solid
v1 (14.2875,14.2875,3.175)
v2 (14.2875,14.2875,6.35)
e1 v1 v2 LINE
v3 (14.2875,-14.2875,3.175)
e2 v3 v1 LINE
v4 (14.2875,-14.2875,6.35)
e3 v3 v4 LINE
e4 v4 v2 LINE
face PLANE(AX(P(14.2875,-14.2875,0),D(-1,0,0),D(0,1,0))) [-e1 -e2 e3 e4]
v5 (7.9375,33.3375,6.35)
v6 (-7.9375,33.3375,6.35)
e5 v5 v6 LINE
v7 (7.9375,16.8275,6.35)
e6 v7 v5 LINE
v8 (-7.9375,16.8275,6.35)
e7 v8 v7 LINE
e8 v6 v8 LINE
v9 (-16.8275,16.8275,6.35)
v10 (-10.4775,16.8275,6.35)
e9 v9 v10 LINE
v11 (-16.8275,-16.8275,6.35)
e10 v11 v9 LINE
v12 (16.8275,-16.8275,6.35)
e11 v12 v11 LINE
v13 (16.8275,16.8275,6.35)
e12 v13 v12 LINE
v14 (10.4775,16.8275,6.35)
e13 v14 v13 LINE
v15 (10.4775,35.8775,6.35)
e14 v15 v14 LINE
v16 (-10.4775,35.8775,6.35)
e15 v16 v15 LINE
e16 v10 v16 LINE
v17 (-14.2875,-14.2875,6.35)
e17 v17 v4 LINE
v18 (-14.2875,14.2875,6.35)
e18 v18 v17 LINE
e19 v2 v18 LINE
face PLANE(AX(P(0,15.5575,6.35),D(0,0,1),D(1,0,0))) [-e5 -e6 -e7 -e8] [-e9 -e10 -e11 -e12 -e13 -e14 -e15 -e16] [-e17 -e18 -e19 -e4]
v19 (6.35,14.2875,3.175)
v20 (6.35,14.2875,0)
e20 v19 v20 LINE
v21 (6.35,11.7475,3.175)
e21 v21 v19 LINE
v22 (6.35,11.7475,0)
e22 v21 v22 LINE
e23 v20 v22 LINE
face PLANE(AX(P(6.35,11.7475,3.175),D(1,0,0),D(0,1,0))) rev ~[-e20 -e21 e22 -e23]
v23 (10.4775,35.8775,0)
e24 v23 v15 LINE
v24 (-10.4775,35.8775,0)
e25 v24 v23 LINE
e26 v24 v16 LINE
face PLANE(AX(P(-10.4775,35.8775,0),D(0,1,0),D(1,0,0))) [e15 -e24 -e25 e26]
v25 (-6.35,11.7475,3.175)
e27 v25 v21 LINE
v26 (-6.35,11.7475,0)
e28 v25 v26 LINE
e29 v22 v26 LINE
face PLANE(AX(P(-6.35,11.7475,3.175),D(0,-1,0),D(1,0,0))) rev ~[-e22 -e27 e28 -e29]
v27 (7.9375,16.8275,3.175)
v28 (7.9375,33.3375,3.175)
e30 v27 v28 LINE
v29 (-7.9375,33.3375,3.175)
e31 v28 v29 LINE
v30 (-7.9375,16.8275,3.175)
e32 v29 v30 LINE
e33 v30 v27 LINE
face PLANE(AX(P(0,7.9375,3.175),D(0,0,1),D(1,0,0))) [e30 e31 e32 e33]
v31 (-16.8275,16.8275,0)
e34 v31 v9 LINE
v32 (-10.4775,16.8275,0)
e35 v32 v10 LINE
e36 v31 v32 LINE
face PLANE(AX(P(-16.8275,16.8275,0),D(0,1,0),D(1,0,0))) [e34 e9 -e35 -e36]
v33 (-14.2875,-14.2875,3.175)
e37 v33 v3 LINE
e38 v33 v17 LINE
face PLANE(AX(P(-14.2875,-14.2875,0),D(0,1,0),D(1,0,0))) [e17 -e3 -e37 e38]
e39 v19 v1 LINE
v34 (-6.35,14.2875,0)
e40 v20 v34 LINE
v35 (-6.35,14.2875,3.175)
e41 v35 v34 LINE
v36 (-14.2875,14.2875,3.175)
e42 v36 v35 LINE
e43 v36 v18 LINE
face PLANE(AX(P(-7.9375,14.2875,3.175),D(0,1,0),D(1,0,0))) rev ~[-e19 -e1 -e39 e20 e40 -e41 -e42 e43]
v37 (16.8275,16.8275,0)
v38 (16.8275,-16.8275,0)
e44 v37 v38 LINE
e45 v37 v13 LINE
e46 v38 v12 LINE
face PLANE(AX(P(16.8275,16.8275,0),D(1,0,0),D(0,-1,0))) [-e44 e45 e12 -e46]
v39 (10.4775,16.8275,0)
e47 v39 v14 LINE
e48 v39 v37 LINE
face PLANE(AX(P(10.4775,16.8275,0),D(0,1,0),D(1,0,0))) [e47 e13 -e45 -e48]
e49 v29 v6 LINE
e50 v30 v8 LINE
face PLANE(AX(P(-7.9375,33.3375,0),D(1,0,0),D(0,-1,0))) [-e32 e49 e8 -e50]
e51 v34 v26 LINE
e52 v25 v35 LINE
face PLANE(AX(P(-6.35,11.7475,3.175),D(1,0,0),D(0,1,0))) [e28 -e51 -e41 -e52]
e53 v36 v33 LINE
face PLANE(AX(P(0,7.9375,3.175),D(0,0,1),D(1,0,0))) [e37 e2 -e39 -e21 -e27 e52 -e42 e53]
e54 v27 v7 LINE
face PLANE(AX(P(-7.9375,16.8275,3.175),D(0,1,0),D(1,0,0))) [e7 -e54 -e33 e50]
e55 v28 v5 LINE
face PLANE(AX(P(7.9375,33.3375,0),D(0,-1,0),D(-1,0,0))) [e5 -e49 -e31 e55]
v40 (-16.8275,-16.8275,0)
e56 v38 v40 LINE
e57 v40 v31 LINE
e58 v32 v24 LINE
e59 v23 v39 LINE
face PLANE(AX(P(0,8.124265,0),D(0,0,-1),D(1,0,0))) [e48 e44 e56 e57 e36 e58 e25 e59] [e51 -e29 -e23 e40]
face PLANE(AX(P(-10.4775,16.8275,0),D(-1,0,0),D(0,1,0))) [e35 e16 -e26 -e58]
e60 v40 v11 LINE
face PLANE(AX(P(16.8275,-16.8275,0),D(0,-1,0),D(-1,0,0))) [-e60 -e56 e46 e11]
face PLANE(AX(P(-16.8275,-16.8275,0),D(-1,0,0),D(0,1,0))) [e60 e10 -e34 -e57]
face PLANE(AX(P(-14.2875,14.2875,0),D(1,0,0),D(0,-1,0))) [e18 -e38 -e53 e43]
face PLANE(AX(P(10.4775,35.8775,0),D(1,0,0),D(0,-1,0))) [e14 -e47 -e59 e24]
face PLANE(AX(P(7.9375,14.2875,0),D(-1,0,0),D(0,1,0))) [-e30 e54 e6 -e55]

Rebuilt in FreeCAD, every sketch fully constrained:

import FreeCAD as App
import Part
import Sketcher

V = App.Vector
Q = App.Units.Quantity

doc = App.newDocument("Part")
body = doc.addObject("PartDesign::Body", "Body")

# Sketch on XY plane
sketch1 = doc.addObject("Sketcher::SketchObject", "Sketch")
body.addObject(sketch1)
sketch1.AttachmentSupport = (doc.XY_Plane, [""])
sketch1.MapMode = "FlatFace"
sketch1.addGeometry([
    Part.LineSegment(V(-8, 14, 0), V(-14, 14, 0)),  # 0
    Part.LineSegment(V(-14, 14, 0), V(-14, -14, 0)),  # 1
    Part.LineSegment(V(-14, -14, 0), V(14, -14, 0)),  # 2
    Part.LineSegment(V(14, -14, 0), V(14, 14, 0)),  # 3
    Part.LineSegment(V(14, 14, 0), V(8, 14, 0)),  # 4
    Part.LineSegment(V(8, 14, 0), V(8, 33, 0)),  # 5
    Part.LineSegment(V(8, 33, 0), V(-8, 33, 0)),  # 6
    Part.LineSegment(V(-8, 33, 0), V(-8, 14, 0)),  # 7
], False)
sketch1.addConstraint([
    Sketcher.Constraint("Coincident", 0, 2, 1, 1),
    Sketcher.Constraint("Coincident", 1, 2, 2, 1),
    Sketcher.Constraint("Coincident", 2, 2, 3, 1),
    Sketcher.Constraint("Coincident", 3, 2, 4, 1),
    Sketcher.Constraint("Coincident", 4, 2, 5, 1),
    Sketcher.Constraint("Coincident", 5, 2, 6, 1),
    Sketcher.Constraint("Coincident", 6, 2, 7, 1),
    Sketcher.Constraint("Coincident", 7, 2, 0, 1),
    Sketcher.Constraint("Horizontal", 0),
    Sketcher.Constraint("Vertical", 1),
    Sketcher.Constraint("Horizontal", 2),
    Sketcher.Constraint("Vertical", 3),
    Sketcher.Constraint("Horizontal", 4),
    Sketcher.Constraint("Vertical", 5),
    Sketcher.Constraint("Horizontal", 6),
    Sketcher.Constraint("Vertical", 7),
    Sketcher.Constraint("Symmetric", 0, 2, 2, 2, -1, 1),
    Sketcher.Constraint("Symmetric", 4, 2, 7, 2, -2),
    Sketcher.Constraint("Equal", 2, 1),
    Sketcher.Constraint("DistanceX", 0, 2, 0, 1, Q("0.25 in")),
    Sketcher.Constraint("DistanceY", 5, 1, 5, 2, Q("0.75 in")),
    Sketcher.Constraint("DistanceX", 2, 1, 2, 2, Q("1.125 in")),
])
pad1 = doc.addObject("PartDesign::Pad", "Pad")
body.addObject(pad1)
pad1.Profile = sketch1
pad1.Length = Q("0.125 in")

# Sketch on XY plane
sketch2 = doc.addObject("Sketcher::SketchObject", "Sketch001")
body.addObject(sketch2)
sketch2.AttachmentSupport = (doc.XY_Plane, [""])
sketch2.MapMode = "FlatFace"
sketch2.addGeometry([
    Part.LineSegment(V(17, 17, 0), V(17, -17, 0)),  # 0
    Part.LineSegment(V(17, -17, 0), V(-17, -17, 0)),  # 1
    Part.LineSegment(V(-17, -17, 0), V(-17, 17, 0)),  # 2
    Part.LineSegment(V(-17, 17, 0), V(-10, 17, 0)),  # 3
    Part.LineSegment(V(-10, 17, 0), V(-10, 36, 0)),  # 4
    Part.LineSegment(V(-10, 36, 0), V(10, 36, 0)),  # 5
    Part.LineSegment(V(10, 36, 0), V(10, 17, 0)),  # 6
    Part.LineSegment(V(10, 17, 0), V(17, 17, 0)),  # 7
    Part.LineSegment(V(-14, 14, 0), V(-14, -14, 0)),  # 8
    Part.LineSegment(V(-14, -14, 0), V(14, -14, 0)),  # 9
    Part.LineSegment(V(14, -14, 0), V(14, 14, 0)),  # 10
    Part.LineSegment(V(14, 14, 0), V(8, 14, 0)),  # 11
    Part.LineSegment(V(8, 14, 0), V(8, 33, 0)),  # 12
    Part.LineSegment(V(8, 33, 0), V(-8, 33, 0)),  # 13
    Part.LineSegment(V(-8, 33, 0), V(-8, 14, 0)),  # 14
    Part.LineSegment(V(-8, 14, 0), V(-14, 14, 0)),  # 15
], False)
sketch2.addConstraint([
    Sketcher.Constraint("Coincident", 0, 2, 1, 1),
    Sketcher.Constraint("Coincident", 1, 2, 2, 1),
    Sketcher.Constraint("Coincident", 2, 2, 3, 1),
    Sketcher.Constraint("Coincident", 3, 2, 4, 1),
    Sketcher.Constraint("Coincident", 4, 2, 5, 1),
    Sketcher.Constraint("Coincident", 5, 2, 6, 1),
    Sketcher.Constraint("Coincident", 6, 2, 7, 1),
    Sketcher.Constraint("Coincident", 7, 2, 0, 1),
    Sketcher.Constraint("Coincident", 8, 2, 9, 1),
    Sketcher.Constraint("Coincident", 9, 2, 10, 1),
    Sketcher.Constraint("Coincident", 10, 2, 11, 1),
    Sketcher.Constraint("Coincident", 11, 2, 12, 1),
    Sketcher.Constraint("Coincident", 12, 2, 13, 1),
    Sketcher.Constraint("Coincident", 13, 2, 14, 1),
    Sketcher.Constraint("Coincident", 14, 2, 15, 1),
    Sketcher.Constraint("Coincident", 15, 2, 8, 1),
    Sketcher.Constraint("Vertical", 0),
    Sketcher.Constraint("Horizontal", 1),
    Sketcher.Constraint("Vertical", 2),
    Sketcher.Constraint("Horizontal", 3),
    Sketcher.Constraint("Vertical", 4),
    Sketcher.Constraint("Horizontal", 5),
    Sketcher.Constraint("Vertical", 6),
    Sketcher.Constraint("Horizontal", 7),
    Sketcher.Constraint("Vertical", 8),
    Sketcher.Constraint("Horizontal", 9),
    Sketcher.Constraint("Vertical", 10),
    Sketcher.Constraint("Horizontal", 11),
    Sketcher.Constraint("Vertical", 12),
    Sketcher.Constraint("Horizontal", 13),
    Sketcher.Constraint("Vertical", 14),
    Sketcher.Constraint("Horizontal", 15),
    Sketcher.Constraint("Symmetric", 0, 2, 2, 2, -1, 1),
    Sketcher.Constraint("Symmetric", 8, 2, 10, 2, -1, 1),
    Sketcher.Constraint("Symmetric", 3, 2, 6, 2, -2),
    Sketcher.Constraint("Symmetric", 11, 2, 14, 2, -2),
    Sketcher.Constraint("Equal", 7, 11),
    Sketcher.Constraint("Equal", 1, 0),
    Sketcher.Constraint("Equal", 9, 8),
    Sketcher.Constraint("Equal", 6, 12),
    Sketcher.Constraint("DistanceX", 3, 1, 3, 2, Q("0.25 in")),
    Sketcher.Constraint("DistanceY", 4, 1, 4, 2, Q("0.75 in")),
    Sketcher.Constraint("DistanceX", 1, 2, 8, 2, Q("0.1 in")),
    Sketcher.Constraint("DistanceX", 1, 2, 1, 1, Q("1.325 in")),
])
pad2 = doc.addObject("PartDesign::Pad", "Pad001")
body.addObject(pad2)
pad2.Profile = sketch2
pad2.Length = Q("0.25 in")

# Sketch on XY plane
sketch3 = doc.addObject("Sketcher::SketchObject", "Sketch002")
body.addObject(sketch3)
sketch3.AttachmentSupport = (doc.XY_Plane, [""])
sketch3.MapMode = "FlatFace"
sketch3.AttachmentOffset = App.Placement(V(0, 0, 0.125 * 25.4), App.Rotation())
sketch3.addGeometry([
    Part.LineSegment(V(-7.9, 16.8, 0), V(-7.9, 14.3, 0)),
    Part.LineSegment(V(-7.9, 14.3, 0), V(7.9, 14.3, 0)),
    Part.LineSegment(V(7.9, 14.3, 0), V(7.9, 16.8, 0)),
    Part.LineSegment(V(7.9, 16.8, 0), V(-7.9, 16.8, 0)),
], False)
sketch3.addConstraint([
    Sketcher.Constraint("Coincident", 0, 2, 1, 1),
    Sketcher.Constraint("Coincident", 1, 2, 2, 1),
    Sketcher.Constraint("Coincident", 2, 2, 3, 1),
    Sketcher.Constraint("Coincident", 3, 2, 0, 1),
    Sketcher.Constraint("Vertical", 0),
    Sketcher.Constraint("Horizontal", 1),
    Sketcher.Constraint("Vertical", 2),
    Sketcher.Constraint("Horizontal", 3),
    Sketcher.Constraint("DistanceY", 0, 2, 0, 1, Q("0.1 in")),
    Sketcher.Constraint("DistanceX", 1, 1, 1, 2, Q("0.625 in")),
    Sketcher.Constraint("DistanceX", 0, 2, -1, 1, Q("0.3125 in")),
    Sketcher.Constraint("DistanceY", -1, 1, 0, 2, Q("0.5625 in")),
])
pad3 = doc.addObject("PartDesign::Pad", "Pad002")
body.addObject(pad3)
pad3.Profile = sketch3
pad3.Length = Q("0.125 in")

# Sketch on XY plane
sketch4 = doc.addObject("Sketcher::SketchObject", "Sketch003")
body.addObject(sketch4)
sketch4.AttachmentSupport = (doc.XY_Plane, [""])
sketch4.MapMode = "FlatFace"
sketch4.AttachmentOffset = App.Placement(V(0, 0, 0.125 * 25.4), App.Rotation())
sketch4.addGeometry([
    Part.LineSegment(V(-6.3, 14.3, 0), V(-6.3, 11.7, 0)),
    Part.LineSegment(V(-6.3, 11.7, 0), V(6.3, 11.7, 0)),
    Part.LineSegment(V(6.3, 11.7, 0), V(6.3, 14.3, 0)),
    Part.LineSegment(V(6.3, 14.3, 0), V(-6.3, 14.3, 0)),
], False)
sketch4.addConstraint([
    Sketcher.Constraint("Coincident", 0, 2, 1, 1),
    Sketcher.Constraint("Coincident", 1, 2, 2, 1),
    Sketcher.Constraint("Coincident", 2, 2, 3, 1),
    Sketcher.Constraint("Coincident", 3, 2, 0, 1),
    Sketcher.Constraint("Vertical", 0),
    Sketcher.Constraint("Horizontal", 1),
    Sketcher.Constraint("Vertical", 2),
    Sketcher.Constraint("Horizontal", 3),
    Sketcher.Constraint("DistanceX", 1, 1, 1, 2, Q("0.5 in")),
    Sketcher.Constraint("DistanceY", 0, 2, 0, 1, Q("0.1 in")),
    Sketcher.Constraint("DistanceX", 0, 2, -1, 1, Q("0.25 in")),
    Sketcher.Constraint("DistanceY", -1, 1, 2, 2, Q("0.5625 in")),
])
pocket1 = doc.addObject("PartDesign::Pocket", "Pocket")
body.addObject(pocket1)
pocket1.Profile = sketch4
pocket1.Length = Q("1 in")

doc.recompute()
